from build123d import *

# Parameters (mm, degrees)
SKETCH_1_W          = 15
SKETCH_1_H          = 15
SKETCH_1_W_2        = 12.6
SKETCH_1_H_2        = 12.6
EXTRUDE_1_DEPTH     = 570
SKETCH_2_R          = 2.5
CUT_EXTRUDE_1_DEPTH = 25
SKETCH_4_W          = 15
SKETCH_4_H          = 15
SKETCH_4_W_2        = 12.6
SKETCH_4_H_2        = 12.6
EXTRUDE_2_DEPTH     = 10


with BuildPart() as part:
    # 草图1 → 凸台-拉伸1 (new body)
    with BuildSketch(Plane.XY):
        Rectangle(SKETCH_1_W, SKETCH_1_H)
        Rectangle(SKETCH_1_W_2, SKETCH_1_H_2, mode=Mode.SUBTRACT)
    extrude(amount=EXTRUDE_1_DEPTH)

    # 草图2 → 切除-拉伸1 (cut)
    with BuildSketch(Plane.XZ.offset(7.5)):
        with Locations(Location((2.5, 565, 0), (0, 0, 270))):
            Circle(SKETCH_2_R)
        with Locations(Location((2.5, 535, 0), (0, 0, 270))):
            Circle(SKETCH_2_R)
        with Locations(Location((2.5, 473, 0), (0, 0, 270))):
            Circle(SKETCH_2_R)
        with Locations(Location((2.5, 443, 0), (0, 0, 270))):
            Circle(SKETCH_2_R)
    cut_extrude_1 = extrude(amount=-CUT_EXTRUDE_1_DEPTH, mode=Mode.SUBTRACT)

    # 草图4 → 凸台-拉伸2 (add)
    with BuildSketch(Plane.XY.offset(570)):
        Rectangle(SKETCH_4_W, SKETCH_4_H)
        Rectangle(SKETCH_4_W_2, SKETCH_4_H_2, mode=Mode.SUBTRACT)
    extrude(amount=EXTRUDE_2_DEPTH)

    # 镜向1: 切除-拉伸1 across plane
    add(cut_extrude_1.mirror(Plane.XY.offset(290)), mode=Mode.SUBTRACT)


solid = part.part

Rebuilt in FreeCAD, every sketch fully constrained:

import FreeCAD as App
import Part
import Sketcher

V = App.Vector
Q = App.Units.Quantity

doc = App.newDocument("Part")
body = doc.addObject("PartDesign::Body", "Body")

# Sketch on XY plane
sketch1 = body.newObject("Sketcher::SketchObject", "Sketch")
sketch1.AttachmentSupport = (doc.getObject("XY_Plane"), [""])
sketch1.MapMode = "FlatFace"
sketch1.addGeometry(Part.LineSegment(V(-8, 8, 0), V(-8, -8, 0)), False)
sketch1.addGeometry(Part.LineSegment(V(-8, -8, 0), V(8, -8, 0)), False)
sketch1.addGeometry(Part.LineSegment(V(8, -8, 0), V(8, 8, 0)), False)
sketch1.addGeometry(Part.LineSegment(V(8, 8, 0), V(-8, 8, 0)), False)
sketch1.addGeometry(Part.LineSegment(V(6, -6, 0), V(-6, -6, 0)), False)
sketch1.addGeometry(Part.LineSegment(V(-6, -6, 0), V(-6, 6, 0)), False)
sketch1.addGeometry(Part.LineSegment(V(-6, 6, 0), V(6, 6, 0)), False)
sketch1.addGeometry(Part.LineSegment(V(6, 6, 0), V(6, -6, 0)), False)
sketch1.addConstraint(Sketcher.Constraint("Coincident", 0, 2, 1, 1))
sketch1.addConstraint(Sketcher.Constraint("Coincident", 1, 2, 2, 1))
sketch1.addConstraint(Sketcher.Constraint("Coincident", 2, 2, 3, 1))
sketch1.addConstraint(Sketcher.Constraint("Coincident", 3, 2, 0, 1))
sketch1.addConstraint(Sketcher.Constraint("Coincident", 4, 2, 5, 1))
sketch1.addConstraint(Sketcher.Constraint("Coincident", 5, 2, 6, 1))
sketch1.addConstraint(Sketcher.Constraint("Coincident", 6, 2, 7, 1))
sketch1.addConstraint(Sketcher.Constraint("Coincident", 7, 2, 4, 1))
sketch1.addConstraint(Sketcher.Constraint("Vertical", 0))
sketch1.addConstraint(Sketcher.Constraint("Horizontal", 1))
sketch1.addConstraint(Sketcher.Constraint("Vertical", 2))
sketch1.addConstraint(Sketcher.Constraint("Horizontal", 3))
sketch1.addConstraint(Sketcher.Constraint("Horizontal", 4))
sketch1.addConstraint(Sketcher.Constraint("Vertical", 5))
sketch1.addConstraint(Sketcher.Constraint("Horizontal", 6))
sketch1.addConstraint(Sketcher.Constraint("Vertical", 7))
sketch1.addConstraint(Sketcher.Constraint("Symmetric", 0, 2, 2, 2, -1, 1))
sketch1.addConstraint(Sketcher.Constraint("Symmetric", 4, 2, 6, 2, -1, 1))
sketch1.addConstraint(Sketcher.Constraint("Equal", 3, 0))
sketch1.addConstraint(Sketcher.Constraint("Equal", 6, 5))
sketch1.addConstraint(Sketcher.Constraint("DistanceX", 1, 1, 1, 2, Q("15 mm")))
sketch1.addConstraint(Sketcher.Constraint("DistanceX", 4, 2, 4, 1, Q("12.6 mm")))
pad1 = body.newObject("PartDesign::Pad", "Pad")
pad1.Profile = sketch1
pad1.Length = 570

# Sketch on XZ plane
sketch2 = body.newObject("Sketcher::SketchObject", "Sketch001")
sketch2.AttachmentSupport = (doc.getObject("XZ_Plane"), [""])
sketch2.MapMode = "FlatFace"
sketch2.AttachmentOffset = App.Placement(V(0, 0, 7.5), App.Rotation())
sketch2.addGeometry(Part.Circle(V(2.5, 565, 0), V(0, 0, 1), 2.5), False)
sketch2.addGeometry(Part.Circle(V(2.5, 535, 0), V(0, 0, 1), 2.5), False)
sketch2.addGeometry(Part.Circle(V(2.5, 473, 0), V(0, 0, 1), 2.5), False)
sketch2.addGeometry(Part.Circle(V(2.5, 443, 0), V(0, 0, 1), 2.5), False)
sketch2.addConstraint(Sketcher.Constraint("Equal", 0, 1))
sketch2.addConstraint(Sketcher.Constraint("Equal", 1, 2))
sketch2.addConstraint(Sketcher.Constraint("Equal", 2, 3))
sketch2.addConstraint(Sketcher.Constraint("Vertical", 0, 3, 1, 3))
sketch2.addConstraint(Sketcher.Constraint("Vertical", 1, 3, 2, 3))
sketch2.addConstraint(Sketcher.Constraint("Vertical", 2, 3, 3, 3))
sketch2.addConstraint(Sketcher.Constraint("Diameter", 0, Q("5 mm")))
sketch2.addConstraint(Sketcher.Constraint("DistanceY", -1, 1, 0, 3, Q("565 mm")))
sketch2.addConstraint(Sketcher.Constraint("DistanceY", -1, 1, 1, 3, Q("535 mm")))
sketch2.addConstraint(Sketcher.Constraint("DistanceY", -1, 1, 2, 3, Q("473 mm")))
sketch2.addConstraint(Sketcher.Constraint("DistanceY", -1, 1, 3, 3, Q("443 mm")))
sketch2.addConstraint(Sketcher.Constraint("DistanceX", -1, 1, 0, 3, Q("2.5 mm")))
pocket1 = body.newObject("PartDesign::Pocket", "Pocket")
pocket1.Profile = sketch2
pocket1.Length = 25

# Sketch on XY plane
sketch3 = body.newObject("Sketcher::SketchObject", "Sketch002")
sketch3.AttachmentSupport = (doc.getObject("XY_Plane"), [""])
sketch3.MapMode = "FlatFace"
sketch3.AttachmentOffset = App.Placement(V(0, 0, 570), App.Rotation())
sketch3.addGeometry(Part.LineSegment(V(-8, 8, 0), V(-8, -8, 0)), False)
sketch3.addGeometry(Part.LineSegment(V(-8, -8, 0), V(8, -8, 0)), False)
sketch3.addGeometry(Part.LineSegment(V(8, -8, 0), V(8, 8, 0)), False)
sketch3.addGeometry(Part.LineSegment(V(8, 8, 0), V(-8, 8, 0)), False)
sketch3.addGeometry(Part.LineSegment(V(6, -6, 0), V(-6, -6, 0)), False)
sketch3.addGeometry(Part.LineSegment(V(-6, -6, 0), V(-6, 6, 0)), False)
sketch3.addGeometry(Part.LineSegment(V(-6, 6, 0), V(6, 6, 0)), False)
sketch3.addGeometry(Part.LineSegment(V(6, 6, 0), V(6, -6, 0)), False)
sketch3.addConstraint(Sketcher.Constraint("Coincident", 0, 2, 1, 1))
sketch3.addConstraint(Sketcher.Constraint("Coincident", 1, 2, 2, 1))
sketch3.addConstraint(Sketcher.Constraint("Coincident", 2, 2, 3, 1))
sketch3.addConstraint(Sketcher.Constraint("Coincident", 3, 2, 0, 1))
sketch3.addConstraint(Sketcher.Constraint("Coincident", 4, 2, 5, 1))
sketch3.addConstraint(Sketcher.Constraint("Coincident", 5, 2, 6, 1))
sketch3.addConstraint(Sketcher.Constraint("Coincident", 6, 2, 7, 1))
sketch3.addConstraint(Sketcher.Constraint("Coincident", 7, 2, 4, 1))
sketch3.addConstraint(Sketcher.Constraint("Vertical", 0))
sketch3.addConstraint(Sketcher.Constraint("Horizontal", 1))
sketch3.addConstraint(Sketcher.Constraint("Vertical", 2))
sketch3.addConstraint(Sketcher.Constraint("Horizontal", 3))
sketch3.addConstraint(Sketcher.Constraint("Horizontal", 4))
sketch3.addConstraint(Sketcher.Constraint("Vertical", 5))
sketch3.addConstraint(Sketcher.Constraint("Horizontal", 6))
sketch3.addConstraint(Sketcher.Constraint("Vertical", 7))
sketch3.addConstraint(Sketcher.Constraint("Symmetric", 0, 2, 2, 2, -1, 1))
sketch3.addConstraint(Sketcher.Constraint("Symmetric", 4, 2, 6, 2, -1, 1))
sketch3.addConstraint(Sketcher.Constraint("Equal", 3, 0))
sketch3.addConstraint(Sketcher.Constraint("Equal", 6, 5))
sketch3.addConstraint(Sketcher.Constraint("DistanceX", 1, 1, 1, 2, Q("15 mm")))
sketch3.addConstraint(Sketcher.Constraint("DistanceX", 4, 2, 4, 1, Q("12.6 mm")))
pad2 = body.newObject("PartDesign::Pad", "Pad001")
pad2.Profile = sketch3
pad2.Length = 10
doc.recompute()

datumplane = body.newObject("PartDesign::Plane", "DatumPlane")
datumplane.AttachmentSupport = (doc.getObject("XY_Plane"), [""])
datumplane.MapMode = "FlatFace"
datumplane.AttachmentOffset = App.Placement(V(0, 0, 290), App.Rotation())
mirrored = body.newObject("PartDesign::Mirrored", "Mirrored")
mirrored.Originals = [pocket1]
mirrored.MirrorPlane = (datumplane, [""])
body.Tip = mirrored

doc.recompute()
